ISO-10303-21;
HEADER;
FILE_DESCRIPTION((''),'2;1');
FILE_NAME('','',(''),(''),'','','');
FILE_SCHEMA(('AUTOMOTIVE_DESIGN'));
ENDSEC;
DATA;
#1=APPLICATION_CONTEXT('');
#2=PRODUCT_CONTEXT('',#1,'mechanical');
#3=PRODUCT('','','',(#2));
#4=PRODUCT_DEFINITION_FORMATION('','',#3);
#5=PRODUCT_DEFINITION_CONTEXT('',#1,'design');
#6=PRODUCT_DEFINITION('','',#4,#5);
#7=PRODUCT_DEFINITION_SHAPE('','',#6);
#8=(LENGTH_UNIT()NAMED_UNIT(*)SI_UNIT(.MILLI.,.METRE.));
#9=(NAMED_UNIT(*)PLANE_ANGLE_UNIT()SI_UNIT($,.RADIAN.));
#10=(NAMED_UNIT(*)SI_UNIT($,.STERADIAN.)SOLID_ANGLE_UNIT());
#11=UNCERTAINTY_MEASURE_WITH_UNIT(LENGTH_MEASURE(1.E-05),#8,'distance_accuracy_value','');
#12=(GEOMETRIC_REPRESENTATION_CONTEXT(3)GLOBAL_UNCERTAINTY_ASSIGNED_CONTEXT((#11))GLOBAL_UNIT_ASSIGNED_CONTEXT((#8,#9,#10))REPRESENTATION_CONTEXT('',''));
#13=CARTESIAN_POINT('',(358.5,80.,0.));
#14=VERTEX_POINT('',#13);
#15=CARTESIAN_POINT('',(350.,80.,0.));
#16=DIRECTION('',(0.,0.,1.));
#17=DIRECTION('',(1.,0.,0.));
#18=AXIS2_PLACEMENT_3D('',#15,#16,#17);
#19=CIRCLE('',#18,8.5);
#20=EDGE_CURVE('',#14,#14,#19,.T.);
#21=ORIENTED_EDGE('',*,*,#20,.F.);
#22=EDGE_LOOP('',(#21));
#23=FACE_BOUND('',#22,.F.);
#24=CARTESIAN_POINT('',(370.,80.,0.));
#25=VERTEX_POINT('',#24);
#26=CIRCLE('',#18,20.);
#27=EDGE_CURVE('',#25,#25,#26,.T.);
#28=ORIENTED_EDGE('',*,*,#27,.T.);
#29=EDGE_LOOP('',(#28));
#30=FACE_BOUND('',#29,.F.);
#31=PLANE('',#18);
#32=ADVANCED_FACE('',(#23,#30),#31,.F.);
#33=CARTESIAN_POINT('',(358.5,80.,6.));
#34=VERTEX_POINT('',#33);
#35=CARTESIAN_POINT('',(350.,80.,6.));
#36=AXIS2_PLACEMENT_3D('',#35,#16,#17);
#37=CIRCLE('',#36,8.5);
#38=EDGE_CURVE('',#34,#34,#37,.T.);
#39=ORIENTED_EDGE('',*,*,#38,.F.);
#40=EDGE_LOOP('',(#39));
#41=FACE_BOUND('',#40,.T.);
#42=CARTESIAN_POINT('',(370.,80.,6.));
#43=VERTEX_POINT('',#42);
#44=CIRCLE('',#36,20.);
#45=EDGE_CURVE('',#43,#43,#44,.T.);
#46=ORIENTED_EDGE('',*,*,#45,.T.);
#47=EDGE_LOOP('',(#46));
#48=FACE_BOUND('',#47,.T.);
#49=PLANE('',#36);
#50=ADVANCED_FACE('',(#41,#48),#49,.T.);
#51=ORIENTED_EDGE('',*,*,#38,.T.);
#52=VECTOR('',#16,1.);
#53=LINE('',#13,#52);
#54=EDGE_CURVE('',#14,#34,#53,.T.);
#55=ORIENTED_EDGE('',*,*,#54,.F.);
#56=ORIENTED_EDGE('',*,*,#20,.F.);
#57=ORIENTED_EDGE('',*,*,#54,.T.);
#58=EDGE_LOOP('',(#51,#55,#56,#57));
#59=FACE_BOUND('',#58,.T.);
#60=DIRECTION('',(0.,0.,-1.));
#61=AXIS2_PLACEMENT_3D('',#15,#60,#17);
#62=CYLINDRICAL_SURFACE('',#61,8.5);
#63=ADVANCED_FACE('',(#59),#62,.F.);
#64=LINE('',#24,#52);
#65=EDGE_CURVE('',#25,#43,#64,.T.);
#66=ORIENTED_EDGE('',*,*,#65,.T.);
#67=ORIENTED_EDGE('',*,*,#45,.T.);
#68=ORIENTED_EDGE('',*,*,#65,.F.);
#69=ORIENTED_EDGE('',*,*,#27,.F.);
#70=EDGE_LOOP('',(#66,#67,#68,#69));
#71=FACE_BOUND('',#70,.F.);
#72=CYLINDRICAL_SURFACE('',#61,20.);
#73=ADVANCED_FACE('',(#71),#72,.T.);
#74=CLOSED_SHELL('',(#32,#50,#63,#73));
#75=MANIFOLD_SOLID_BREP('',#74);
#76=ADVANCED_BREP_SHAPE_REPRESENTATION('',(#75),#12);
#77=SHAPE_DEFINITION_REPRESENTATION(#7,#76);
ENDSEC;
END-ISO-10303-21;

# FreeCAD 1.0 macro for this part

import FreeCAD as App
import Part
import Sketcher

V = App.Vector
Q = App.Units.Quantity

doc = App.newDocument("Part")
params = doc.addObject("Spreadsheet::Sheet", "Params")
for row, (alias, value) in enumerate([
    ("sketch1_diameter", "40 mm"),
    ("sketch1_diameter2", "17 mm"),
    ("pad1_length", "6 mm"),
], start=1):
    params.set(f"A{row}", alias)
    params.set(f"B{row}", "=" + value)
    params.setAlias(f"B{row}", alias)

body = doc.addObject("PartDesign::Body", "Body")

sketch1 = body.newObject("Sketcher::SketchObject", "Sketch")
sketch1.AttachmentSupport = (doc.getObject("XY_Plane"), [""])
sketch1.MapMode = "FlatFace"
sketch1.addGeometry([
    Part.Circle(V(350, 80, 0), V(0, 0, 1), 20),
    Part.Circle(V(350, 80, 0), V(0, 0, 1), 8.5),
], False)
sketch1.addConstraint([
    Sketcher.Constraint("Coincident", 1, 3, 0, 3),
    Sketcher.Constraint("Diameter", 0, Q("40 mm")),
    Sketcher.Constraint("Diameter", 1, Q("17 mm")),
    Sketcher.Constraint("DistanceX", -1, 1, 0, 3, Q("350 mm")),
    Sketcher.Constraint("DistanceY", -1, 1, 0, 3, Q("80 mm")),
])
sketch1.setExpression("Constraints[1]", "Params.sketch1_diameter")
sketch1.setExpression("Constraints[2]", "Params.sketch1_diameter2")
pad1 = body.newObject("PartDesign::Pad", "Pad")
pad1.Profile = sketch1
pad1.setExpression("Length", "Params.pad1_length")

doc.recompute()
